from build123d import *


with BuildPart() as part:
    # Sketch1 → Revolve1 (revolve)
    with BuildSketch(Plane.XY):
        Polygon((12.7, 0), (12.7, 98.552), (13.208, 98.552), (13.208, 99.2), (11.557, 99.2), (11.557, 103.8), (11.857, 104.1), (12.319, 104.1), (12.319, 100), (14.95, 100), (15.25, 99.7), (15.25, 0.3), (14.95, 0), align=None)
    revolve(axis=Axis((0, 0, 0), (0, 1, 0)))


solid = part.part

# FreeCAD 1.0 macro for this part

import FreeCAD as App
import Part
import Sketcher
from FreeCAD import Vector


def add_polygon(sketch, points):
    """Adds a closed chain of lines whose ends are joined by coincident constraints."""
    first, n = sketch.GeometryCount, len(points)
    for a, b in zip(points, points[1:] + points[:1]):
        sketch.addGeometry(Part.LineSegment(App.Vector(*a, 0), App.Vector(*b, 0)), False)
    for i in range(n):
        sketch.addConstraint(Sketcher.Constraint("Coincident", first + i, 2, first + (i + 1) % n, 1))

doc = App.newDocument("Part")
params = doc.addObject("Spreadsheet::Sheet", "Params")
for row, (alias, value) in enumerate([
    ("sketch1_height", "99.4 mm"),
    ("sketch1_height2", "4.1 mm"),
    ("sketch1_height3", "4.6 mm"),
    ("sketch1_width", "2.25 mm"),
    ("revolution_angle", "360 deg"),
], start=1):
    params.set(f"A{row}", alias)
    params.set(f"B{row}", "=" + value)
    params.setAlias(f"B{row}", alias)

body = doc.addObject("PartDesign::Body", "Body")

# Sketch on XY plane
sketch1 = doc.addObject("Sketcher::SketchObject", "Sketch")
body.addObject(sketch1)
sketch1.AttachmentSupport = (doc.XY_Plane, [""])
sketch1.MapMode = "FlatFace"
add_polygon(sketch1, [(12.7, 98.55), (12.7, 0), (14.95, 0), (15.25, 0.3), (15.25, 99.7), (14.95, 100), (12.32, 100), (12.32, 104.1), (11.86, 104.1), (11.56, 103.8), (11.56, 99.2), (13.21, 99.2), (13.21, 98.55)])  # lines 0-12
sketch1.addConstraint([
    Sketcher.Constraint("Vertical", 0),
    Sketcher.Constraint("Horizontal", 1),
    Sketcher.Constraint("Vertical", 3),
    Sketcher.Constraint("Horizontal", 5),
    Sketcher.Constraint("Vertical", 6),
    Sketcher.Constraint("Horizontal", 7),
    Sketcher.Constraint("Vertical", 9),
    Sketcher.Constraint("Horizontal", 10),
    Sketcher.Constraint("Vertical", 11),
    Sketcher.Constraint("Horizontal", 12),
    Sketcher.Constraint("PointOnObject", 0, 2, -1),
    Sketcher.Constraint("Perpendicular", 2, 4),
    Sketcher.Constraint("Perpendicular", 4, 8),
    Sketcher.Constraint("Vertical", 1, 2, 4, 2),
    Sketcher.Constraint("Equal", 2, 4),
    Sketcher.Constraint("Equal", 4, 8),
    Sketcher.Constraint("DistanceY", 3, 1, 3, 2, 99.4),
    Sketcher.Constraint("DistanceY", 6, 1, 6, 2, 4.1),
    Sketcher.Constraint("DistanceY", 9, 2, 9, 1, 4.6),
    Sketcher.Constraint("DistanceY", -1, 1, 4, 2, 100.0),
    Sketcher.Constraint("DistanceX", 1, 1, 1, 2, 2.25),
    Sketcher.Constraint("DistanceX", -1, 1, 0, 2, 12.7),
    Sketcher.Constraint("DistanceX", 5, 2, 5, 1, 2.631),
    Sketcher.Constraint("DistanceX", 7, 2, 7, 1, 0.462),
    Sketcher.Constraint("DistanceX", 10, 1, 10, 2, 1.651),
    Sketcher.Constraint("DistanceY", 0, 2, 0, 1, 98.552),
])
sketch1.setExpression("Constraints[29]", "Params.sketch1_height")
sketch1.setExpression("Constraints[30]", "Params.sketch1_height2")
sketch1.setExpression("Constraints[31]", "Params.sketch1_height3")
sketch1.setExpression("Constraints[33]", "Params.sketch1_width")
revolution = doc.addObject("PartDesign::Revolution", "Revolution")
body.addObject(revolution)
revolution.Profile = sketch1
revolution.ReferenceAxis = (sketch1, ["V_Axis"])
revolution.setExpression("Angle", "Params.revolution_angle")

doc.recompute()
